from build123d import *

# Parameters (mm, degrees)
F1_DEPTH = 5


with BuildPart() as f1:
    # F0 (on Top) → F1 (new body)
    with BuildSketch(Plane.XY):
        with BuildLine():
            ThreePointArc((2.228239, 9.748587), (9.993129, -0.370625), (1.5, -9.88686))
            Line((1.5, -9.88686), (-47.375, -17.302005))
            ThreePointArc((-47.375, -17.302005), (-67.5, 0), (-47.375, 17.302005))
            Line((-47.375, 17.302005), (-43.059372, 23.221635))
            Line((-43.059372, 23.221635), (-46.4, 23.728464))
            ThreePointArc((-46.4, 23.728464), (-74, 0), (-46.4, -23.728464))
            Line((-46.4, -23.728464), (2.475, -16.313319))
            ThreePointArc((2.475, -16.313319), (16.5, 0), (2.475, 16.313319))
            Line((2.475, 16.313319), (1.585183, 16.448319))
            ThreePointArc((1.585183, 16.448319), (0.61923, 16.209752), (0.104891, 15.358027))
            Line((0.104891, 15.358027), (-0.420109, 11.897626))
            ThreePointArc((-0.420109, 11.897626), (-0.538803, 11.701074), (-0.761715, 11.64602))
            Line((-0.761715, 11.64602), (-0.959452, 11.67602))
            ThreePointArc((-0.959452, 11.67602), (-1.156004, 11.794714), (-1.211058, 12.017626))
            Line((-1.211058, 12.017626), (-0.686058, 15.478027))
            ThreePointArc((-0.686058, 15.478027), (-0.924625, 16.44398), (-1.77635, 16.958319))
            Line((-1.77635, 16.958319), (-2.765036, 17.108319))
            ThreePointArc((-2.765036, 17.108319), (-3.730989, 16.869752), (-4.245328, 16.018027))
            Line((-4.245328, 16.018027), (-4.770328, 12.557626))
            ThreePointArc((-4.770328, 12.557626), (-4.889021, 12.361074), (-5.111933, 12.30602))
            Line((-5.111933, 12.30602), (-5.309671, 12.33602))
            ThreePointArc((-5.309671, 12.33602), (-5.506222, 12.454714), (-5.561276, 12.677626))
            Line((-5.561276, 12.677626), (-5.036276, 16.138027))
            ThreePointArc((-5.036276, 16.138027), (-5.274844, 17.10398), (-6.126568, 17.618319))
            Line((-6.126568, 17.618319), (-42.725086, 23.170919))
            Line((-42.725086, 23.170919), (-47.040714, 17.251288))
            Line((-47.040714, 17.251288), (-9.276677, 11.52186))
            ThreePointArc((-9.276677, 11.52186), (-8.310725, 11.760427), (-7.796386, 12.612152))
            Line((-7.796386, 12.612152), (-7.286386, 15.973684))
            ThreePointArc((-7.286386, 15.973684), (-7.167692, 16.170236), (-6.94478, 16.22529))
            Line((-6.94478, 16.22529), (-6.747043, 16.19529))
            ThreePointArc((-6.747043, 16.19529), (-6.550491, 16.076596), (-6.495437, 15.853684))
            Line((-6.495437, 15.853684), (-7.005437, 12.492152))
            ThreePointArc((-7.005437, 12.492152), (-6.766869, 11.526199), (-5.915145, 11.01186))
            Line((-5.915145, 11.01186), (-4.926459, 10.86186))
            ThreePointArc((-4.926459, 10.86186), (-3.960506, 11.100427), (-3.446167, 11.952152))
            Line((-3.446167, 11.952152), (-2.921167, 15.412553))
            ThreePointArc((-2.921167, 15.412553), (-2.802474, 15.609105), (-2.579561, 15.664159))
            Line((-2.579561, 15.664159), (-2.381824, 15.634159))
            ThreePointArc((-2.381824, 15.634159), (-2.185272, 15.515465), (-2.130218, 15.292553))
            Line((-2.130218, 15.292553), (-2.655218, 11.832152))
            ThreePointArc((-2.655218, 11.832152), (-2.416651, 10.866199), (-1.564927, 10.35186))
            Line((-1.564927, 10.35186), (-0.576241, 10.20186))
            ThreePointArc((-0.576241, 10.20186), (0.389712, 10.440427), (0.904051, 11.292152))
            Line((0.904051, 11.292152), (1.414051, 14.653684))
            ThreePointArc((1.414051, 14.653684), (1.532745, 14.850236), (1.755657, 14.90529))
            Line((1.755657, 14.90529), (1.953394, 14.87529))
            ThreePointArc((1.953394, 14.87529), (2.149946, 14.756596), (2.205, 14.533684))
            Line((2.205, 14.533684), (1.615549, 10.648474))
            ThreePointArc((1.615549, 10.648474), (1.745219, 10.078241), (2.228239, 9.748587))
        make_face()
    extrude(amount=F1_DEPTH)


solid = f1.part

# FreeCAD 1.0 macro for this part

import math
import FreeCAD as App
import Part
import Sketcher

doc = App.newDocument("Part")
body = doc.addObject("PartDesign::Body", "Body")

# Sketch on XY plane
sketch1 = body.newObject("Sketcher::SketchObject", "Sketch")
sketch1.AttachmentSupport = (doc.getObject("XY_Plane"), [""])
sketch1.MapMode = "FlatFace"
sketch1.addGeometry([
    Part.ArcOfCircle(Part.Circle(App.Vector(0, 0, 0), App.Vector(0, 0, 1), 10), math.radians(-81), math.radians(77)),  # 0
    Part.LineSegment(App.Vector(1.5, -9.89, 0), App.Vector(-47.38, -17.3, 0)),  # 1
    Part.ArcOfCircle(Part.Circle(App.Vector(-50, 0, 0), App.Vector(0, 0, 1), 17.5), math.radians(81), math.radians(279)),  # 2
    Part.LineSegment(App.Vector(-47.38, 17.3, 0), App.Vector(-43.06, 23.22, 0)),  # 3
    Part.LineSegment(App.Vector(-43.06, 23.22, 0), App.Vector(-46.4, 23.73, 0)),  # 4
    Part.ArcOfCircle(Part.Circle(App.Vector(-50, 0, 0), App.Vector(0, 0, 1), 24), math.radians(81), math.radians(279)),  # 5
    Part.LineSegment(App.Vector(-46.4, -23.73, 0), App.Vector(2.48, -16.31, 0)),  # 6
    Part.ArcOfCircle(Part.Circle(App.Vector(0, 0, 0), App.Vector(0, 0, 1), 16.5), math.radians(-81), math.radians(81)),  # 7
    Part.LineSegment(App.Vector(2.48, 16.31, 0), App.Vector(1.59, 16.45, 0)),  # 8
    Part.ArcOfCircle(Part.Circle(App.Vector(1.39, 15.16, 0), App.Vector(0, 0, 1), 1.3), math.radians(81), math.radians(171)),  # 9
    Part.LineSegment(App.Vector(0.1, 15.36, 0), App.Vector(-0.42, 11.9, 0)),  # 10
    Part.ArcOfCircle(Part.Circle(App.Vector(-0.72, 11.94, 0), App.Vector(0, 0, 1), 0.3), math.radians(-99), math.radians(-9)),  # 11
    Part.LineSegment(App.Vector(-0.76, 11.65, 0), App.Vector(-0.96, 11.68, 0)),  # 12
    Part.ArcOfCircle(Part.Circle(App.Vector(-0.91, 11.97, 0), App.Vector(0, 0, 1), 0.3), math.radians(171), math.radians(261)),  # 13
    Part.LineSegment(App.Vector(-1.21, 12.02, 0), App.Vector(-0.69, 15.48, 0)),  # 14
    Part.ArcOfCircle(Part.Circle(App.Vector(-1.97, 15.67, 0), App.Vector(0, 0, 1), 1.3), math.radians(-9), math.radians(81)),  # 15
    Part.LineSegment(App.Vector(-1.78, 16.96, 0), App.Vector(-2.77, 17.11, 0)),  # 16
    Part.ArcOfCircle(Part.Circle(App.Vector(-2.96, 15.82, 0), App.Vector(0, 0, 1), 1.3), math.radians(81), math.radians(171)),  # 17
    Part.LineSegment(App.Vector(-4.25, 16.02, 0), App.Vector(-4.77, 12.56, 0)),  # 18
    Part.ArcOfCircle(Part.Circle(App.Vector(-5.07, 12.6, 0), App.Vector(0, 0, 1), 0.3), math.radians(-99), math.radians(-9)),  # 19
    Part.LineSegment(App.Vector(-5.11, 12.31, 0), App.Vector(-5.31, 12.34, 0)),  # 20
    Part.ArcOfCircle(Part.Circle(App.Vector(-5.26, 12.63, 0), App.Vector(0, 0, 1), 0.3), math.radians(171), math.radians(261)),  # 21
    Part.LineSegment(App.Vector(-5.56, 12.68, 0), App.Vector(-5.04, 16.14, 0)),  # 22
    Part.ArcOfCircle(Part.Circle(App.Vector(-6.32, 16.33, 0), App.Vector(0, 0, 1), 1.3), math.radians(-9), math.radians(81)),  # 23
    Part.LineSegment(App.Vector(-6.13, 17.62, 0), App.Vector(-42.73, 23.17, 0)),  # 24
    Part.LineSegment(App.Vector(-42.73, 23.17, 0), App.Vector(-47.04, 17.25, 0)),  # 25
    Part.LineSegment(App.Vector(-47.04, 17.25, 0), App.Vector(-9.28, 11.52, 0)),  # 26
    Part.ArcOfCircle(Part.Circle(App.Vector(-9.08, 12.81, 0), App.Vector(0, 0, 1), 1.3), math.radians(-99), math.radians(-9)),  # 27
    Part.LineSegment(App.Vector(-7.8, 12.61, 0), App.Vector(-7.29, 15.97, 0)),  # 28
    Part.ArcOfCircle(Part.Circle(App.Vector(-6.99, 15.93, 0), App.Vector(0, 0, 1), 0.3), math.radians(81), math.radians(171)),  # 29
    Part.LineSegment(App.Vector(-6.94, 16.23, 0), App.Vector(-6.75, 16.2, 0)),  # 30
    Part.ArcOfCircle(Part.Circle(App.Vector(-6.79, 15.9, 0), App.Vector(0, 0, 1), 0.3), math.radians(-9), math.radians(81)),  # 31
    Part.LineSegment(App.Vector(-6.5, 15.85, 0), App.Vector(-7.01, 12.49, 0)),  # 32
    Part.ArcOfCircle(Part.Circle(App.Vector(-5.72, 12.3, 0), App.Vector(0, 0, 1), 1.3), math.radians(171), math.radians(261)),  # 33
    Part.LineSegment(App.Vector(-5.92, 11.01, 0), App.Vector(-4.93, 10.86, 0)),  # 34
    Part.ArcOfCircle(Part.Circle(App.Vector(-4.73, 12.15, 0), App.Vector(0, 0, 1), 1.3), math.radians(-99), math.radians(-9)),  # 35
    Part.LineSegment(App.Vector(-3.45, 11.95, 0), App.Vector(-2.92, 15.41, 0)),  # 36
    Part.ArcOfCircle(Part.Circle(App.Vector(-2.62, 15.37, 0), App.Vector(0, 0, 1), 0.3), math.radians(81), math.radians(171)),  # 37
    Part.LineSegment(App.Vector(-2.58, 15.66, 0), App.Vector(-2.38, 15.63, 0)),  # 38
    Part.ArcOfCircle(Part.Circle(App.Vector(-2.43, 15.34, 0), App.Vector(0, 0, 1), 0.3), math.radians(-9), math.radians(81)),  # 39
    Part.LineSegment(App.Vector(-2.13, 15.29, 0), App.Vector(-2.66, 11.83, 0)),  # 40
    Part.ArcOfCircle(Part.Circle(App.Vector(-1.37, 11.64, 0), App.Vector(0, 0, 1), 1.3), math.radians(171), math.radians(261)),  # 41
    Part.LineSegment(App.Vector(-1.56, 10.35, 0), App.Vector(-0.58, 10.2, 0)),  # 42
    Part.ArcOfCircle(Part.Circle(App.Vector(-0.38, 11.49, 0), App.Vector(0, 0, 1), 1.3), math.radians(-99), math.radians(-9)),  # 43
    Part.LineSegment(App.Vector(0.9, 11.29, 0), App.Vector(1.41, 14.65, 0)),  # 44
    Part.ArcOfCircle(Part.Circle(App.Vector(1.71, 14.61, 0), App.Vector(0, 0, 1), 0.3), math.radians(81), math.radians(171)),  # 45
    Part.LineSegment(App.Vector(1.76, 14.91, 0), App.Vector(1.95, 14.88, 0)),  # 46
    Part.ArcOfCircle(Part.Circle(App.Vector(1.91, 14.58, 0), App.Vector(0, 0, 1), 0.3), math.radians(-9), math.radians(81)),  # 47
    Part.LineSegment(App.Vector(2.21, 14.53, 0), App.Vector(1.62, 10.65, 0)),  # 48
    Part.ArcOfCircle(Part.Circle(App.Vector(2.41, 10.53, 0), App.Vector(0, 0, 1), 0.8), math.radians(171), math.radians(257)),  # 49
], False)
sketch1.addConstraint([
    Sketcher.Constraint("Tangent", 0, 1, 1, 1),
    Sketcher.Constraint("Tangent", 1, 2, 2, 2),
    Sketcher.Constraint("Coincident", 2, 1, 3, 1),
    Sketcher.Constraint("Coincident", 3, 2, 4, 1),
    Sketcher.Constraint("Tangent", 4, 2, 5, 1),
    Sketcher.Constraint("Tangent", 5, 2, 6, 1),
    Sketcher.Constraint("Tangent", 6, 2, 7, 1),
    Sketcher.Constraint("Tangent", 7, 2, 8, 1),
    Sketcher.Constraint("Tangent", 8, 2, 9, 1),
    Sketcher.Constraint("Tangent", 9, 2, 10, 1),
    Sketcher.Constraint("Tangent", 10, 2, 11, 2),
    Sketcher.Constraint("Tangent", 11, 1, 12, 1),
    Sketcher.Constraint("Tangent", 12, 2, 13, 2),
    Sketcher.Constraint("Tangent", 13, 1, 14, 1),
    Sketcher.Constraint("Tangent", 14, 2, 15, 1),
    Sketcher.Constraint("Tangent", 15, 2, 16, 1),
    Sketcher.Constraint("Tangent", 16, 2, 17, 1),
    Sketcher.Constraint("Tangent", 17, 2, 18, 1),
    Sketcher.Constraint("Coincident", 18, 2, 19, 2),
    Sketcher.Constraint("Tangent", 19, 1, 20, 1),
    Sketcher.Constraint("Coincident", 20, 2, 21, 2),
    Sketcher.Constraint("Tangent", 21, 1, 22, 1),
    Sketcher.Constraint("Tangent", 22, 2, 23, 1),
    Sketcher.Constraint("Tangent", 23, 2, 24, 1),
    Sketcher.Constraint("Coincident", 24, 2, 25, 1),
    Sketcher.Constraint("Coincident", 25, 2, 26, 1),
    Sketcher.Constraint("Tangent", 26, 2, 27, 1),
    Sketcher.Constraint("Tangent", 27, 2, 28, 1),
    Sketcher.Constraint("Tangent", 28, 2, 29, 2),
    Sketcher.Constraint("Tangent", 29, 1, 30, 1),
    Sketcher.Constraint("Tangent", 30, 2, 31, 2),
    Sketcher.Constraint("Tangent", 31, 1, 32, 1),
    Sketcher.Constraint("Tangent", 32, 2, 33, 1),
    Sketcher.Constraint("Tangent", 33, 2, 34, 1),
    Sketcher.Constraint("Tangent", 34, 2, 35, 1),
    Sketcher.Constraint("Tangent", 35, 2, 36, 1),
    Sketcher.Constraint("Coincident", 36, 2, 37, 2),
    Sketcher.Constraint("Coincident", 37, 1, 38, 1),
    Sketcher.Constraint("Tangent", 38, 2, 39, 2),
    Sketcher.Constraint("Tangent", 39, 1, 40, 1),
    Sketcher.Constraint("Tangent", 40, 2, 41, 1),
    Sketcher.Constraint("Tangent", 41, 2, 42, 1),
    Sketcher.Constraint("Tangent", 42, 2, 43, 1),
    Sketcher.Constraint("Tangent", 43, 2, 44, 1),
    Sketcher.Constraint("Tangent", 44, 2, 45, 2),
    Sketcher.Constraint("Tangent", 45, 1, 46, 1),
    Sketcher.Constraint("Tangent", 46, 2, 47, 2),
    Sketcher.Constraint("Tangent", 47, 1, 48, 1),
    Sketcher.Constraint("Tangent", 48, 2, 49, 1),
    Sketcher.Constraint("Tangent", 49, 2, 0, 2),
    Sketcher.Constraint("Coincident", 0, 3, -1, 1),
    Sketcher.Constraint("Coincident", 7, 3, -1, 1),
    Sketcher.Constraint("Coincident", 5, 3, 2, 3),
    Sketcher.Constraint("Equal", 11, 13),
    Sketcher.Constraint("Equal", 9, 15),
    Sketcher.Constraint("Equal", 15, 17),
    Sketcher.Constraint("Equal", 13, 19),
    Sketcher.Constraint("Equal", 19, 21),
    Sketcher.Constraint("Equal", 17, 23),
    Sketcher.Constraint("Equal", 17, 27),
    Sketcher.Constraint("Equal", 21, 29),
    Sketcher.Constraint("Equal", 29, 31),
    Sketcher.Constraint("Equal", 23, 33),
    Sketcher.Constraint("Equal", 33, 35),
    Sketcher.Constraint("Equal", 31, 37),
    Sketcher.Constraint("Equal", 37, 39),
    Sketcher.Constraint("Equal", 35, 41),
    Sketcher.Constraint("Equal", 41, 43),
    Sketcher.Constraint("Equal", 39, 45),
    Sketcher.Constraint("Equal", 45, 47),
    Sketcher.Constraint("Symmetric", 1, 2, 2, 1, -1),
    Sketcher.Constraint("Parallel", 1, 6),
    Sketcher.Constraint("Parallel", 4, 8),
    Sketcher.Constraint("Perpendicular", 8, 10),
    Sketcher.Constraint("Perpendicular", 10, 12),
    Sketcher.Constraint("Perpendicular", 12, 14),
    Sketcher.Constraint("Perpendicular", 14, 16),
    Sketcher.Constraint("Perpendicular", 16, 18),
    Sketcher.Constraint("Perpendicular", 18, 20),
    Sketcher.Constraint("Perpendicular", 20, 22),
    Sketcher.Constraint("Perpendicular", 22, 24),
    Sketcher.Constraint("Parallel", 3, 25),
    Sketcher.Constraint("Parallel", 24, 26),
    Sketcher.Constraint("Perpendicular", 26, 28),
    Sketcher.Constraint("Perpendicular", 28, 30),
    Sketcher.Constraint("Perpendicular", 30, 32),
    Sketcher.Constraint("Perpendicular", 32, 34),
    Sketcher.Constraint("Perpendicular", 34, 36),
    Sketcher.Constraint("Perpendicular", 36, 38),
    Sketcher.Constraint("Perpendicular", 38, 40),
    Sketcher.Constraint("Perpendicular", 40, 42),
    Sketcher.Constraint("Perpendicular", 42, 44),
    Sketcher.Constraint("Perpendicular", 44, 46),
    Sketcher.Constraint("Perpendicular", 46, 48),
    Sketcher.Constraint("Vertical", 4, 2, 5, 2),
    Sketcher.Constraint("Equal", 10, 14),
    Sketcher.Constraint("Equal", 14, 18),
    Sketcher.Constraint("Equal", 12, 20),
    Sketcher.Constraint("Equal", 18, 22),
    Sketcher.Constraint("Equal", 3, 25),
    Sketcher.Constraint("Equal", 20, 30),
    Sketcher.Constraint("Equal", 28, 32),
    Sketcher.Constraint("Equal", 16, 34),
    Sketcher.Constraint("Equal", 22, 36),
    Sketcher.Constraint("Equal", 30, 38),
    Sketcher.Constraint("Equal", 36, 40),
    Sketcher.Constraint("Equal", 34, 42),
    Sketcher.Constraint("Equal", 32, 44),
    Sketcher.Constraint("Equal", 38, 46),
    Sketcher.Constraint("Radius", 0, 10.0),
    Sketcher.Constraint("Radius", 5, 24.0),
    Sketcher.Constraint("Radius", 2, 17.5),
    Sketcher.Constraint("Radius", 9, 1.299999),
    Sketcher.Constraint("Radius", 11, 0.3),
    Sketcher.Constraint("Radius", 49, 0.800001),
    Sketcher.Constraint("Distance", 16, 1.0),
    Sketcher.Constraint("DistanceX", 2, 3, -1, 1, 50.0),
    Sketcher.Constraint("Distance", 8, 0.9),
    Sketcher.Constraint("Distance", 10, 3.5),
    Sketcher.Constraint("Distance", 12, 0.2),
    Sketcher.Constraint("Distance", 28, 3.4),
    Sketcher.Constraint("DistanceX", -1, 1, 47, 1, 2.205),
    Sketcher.Constraint("DistanceX", -1, 1, 49, 3, 2.406499),
    Sketcher.Constraint("Distance", 26, 38.196189),
    Sketcher.Constraint("DistanceX", 21, 3, -1, 1, 5.264669),
    Sketcher.Constraint("DistanceY", -1, 1, 27, 3, 12.807151),
    Sketcher.Constraint("DistanceX", 29, 3, -1, 1, 6.98978),
    Sketcher.Constraint("DistanceY", -1, 1, 24, 2, 23.170919),
])
pad1 = body.newObject("PartDesign::Pad", "Pad")
pad1.Profile = sketch1
pad1.Length = 5

doc.recompute()
